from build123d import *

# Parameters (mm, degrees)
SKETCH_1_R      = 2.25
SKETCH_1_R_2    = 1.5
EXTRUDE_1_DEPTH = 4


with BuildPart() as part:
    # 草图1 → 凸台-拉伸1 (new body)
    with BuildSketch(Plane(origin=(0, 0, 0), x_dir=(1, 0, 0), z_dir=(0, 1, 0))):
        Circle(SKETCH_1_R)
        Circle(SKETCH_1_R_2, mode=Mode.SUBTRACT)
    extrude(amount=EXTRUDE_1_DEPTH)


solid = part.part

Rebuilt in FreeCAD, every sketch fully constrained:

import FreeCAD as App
import Part
import Sketcher
from FreeCAD import Vector
Q = App.Units.Quantity

doc = App.newDocument("Part")
body = doc.addObject("PartDesign::Body", "Body")

sketch1 = body.newObject("Sketcher::SketchObject", "Sketch")
sketch1.AttachmentSupport = (doc.getObject("XZ_Plane"), [""])
sketch1.MapMode = "FlatFace"
sketch1.addGeometry(Part.Circle(Vector(0, 0, 0), Vector(0, 0, 1), 2.2), False)
sketch1.addGeometry(Part.Circle(Vector(0, 0, 0), Vector(0, 0, 1), 1.5), False)
sketch1.addConstraint(Sketcher.Constraint("Coincident", 0, 3, -1, 1))
sketch1.addConstraint(Sketcher.Constraint("Coincident", 1, 3, -1, 1))
sketch1.addConstraint(Sketcher.Constraint("Diameter", 1, Q("3 mm")))
sketch1.addConstraint(Sketcher.Constraint("Diameter", 0, Q("4.5 mm")))
pad1 = body.newObject("PartDesign::Pad", "Pad")
pad1.Profile = sketch1
pad1.Length = 4
pad1.Reversed = True

doc.recompute()
